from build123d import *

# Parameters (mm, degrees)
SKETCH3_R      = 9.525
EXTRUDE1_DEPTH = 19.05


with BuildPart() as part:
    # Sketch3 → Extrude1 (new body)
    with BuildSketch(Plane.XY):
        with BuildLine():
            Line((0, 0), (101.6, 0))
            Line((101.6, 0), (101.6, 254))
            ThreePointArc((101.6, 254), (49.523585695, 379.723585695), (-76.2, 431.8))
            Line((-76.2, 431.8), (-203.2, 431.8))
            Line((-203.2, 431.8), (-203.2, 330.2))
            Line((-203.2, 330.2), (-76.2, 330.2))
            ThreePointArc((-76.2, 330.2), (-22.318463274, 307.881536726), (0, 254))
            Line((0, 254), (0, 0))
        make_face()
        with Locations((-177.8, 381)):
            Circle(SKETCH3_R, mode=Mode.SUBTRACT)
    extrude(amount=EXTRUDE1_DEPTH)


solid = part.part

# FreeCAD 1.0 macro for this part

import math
import FreeCAD as App
import Part
import Sketcher
Q = App.Units.Quantity

doc = App.newDocument("Part")
body = doc.addObject("PartDesign::Body", "Body")

sketch1 = body.newObject("Sketcher::SketchObject", "Sketch")
sketch1.AttachmentSupport = (doc.getObject("XY_Plane"), [""])
sketch1.MapMode = "FlatFace"
sketch1.addGeometry(Part.LineSegment(App.Vector(0, 0, 0), App.Vector(102, 0, 0)), False)
sketch1.addGeometry(Part.LineSegment(App.Vector(102, 0, 0), App.Vector(102, 254, 0)), False)
sketch1.addGeometry(Part.ArcOfCircle(Part.Circle(App.Vector(-76, 254, 0), App.Vector(0, 0, 1), 178), math.radians(0), math.radians(90)), False)
sketch1.addGeometry(Part.LineSegment(App.Vector(-76, 432, 0), App.Vector(-203, 432, 0)), False)
sketch1.addGeometry(Part.LineSegment(App.Vector(-203, 432, 0), App.Vector(-203, 330, 0)), False)
sketch1.addGeometry(Part.LineSegment(App.Vector(-203, 330, 0), App.Vector(-76, 330, 0)), False)
sketch1.addGeometry(Part.ArcOfCircle(Part.Circle(App.Vector(-76, 254, 0), App.Vector(0, 0, 1), 76), math.radians(0), math.radians(90)), False)
sketch1.addGeometry(Part.LineSegment(App.Vector(0, 254, 0), App.Vector(0, 0, 0)), False)
sketch1.addGeometry(Part.Circle(App.Vector(-178, 381, 0), App.Vector(0, 0, 1), 10), False)
sketch1.addConstraint(Sketcher.Constraint("Coincident", 0, 2, 1, 1))
sketch1.addConstraint(Sketcher.Constraint("Tangent", 1, 2, 2, 1))
sketch1.addConstraint(Sketcher.Constraint("Tangent", 2, 2, 3, 1))
sketch1.addConstraint(Sketcher.Constraint("Coincident", 3, 2, 4, 1))
sketch1.addConstraint(Sketcher.Constraint("Coincident", 4, 2, 5, 1))
sketch1.addConstraint(Sketcher.Constraint("Tangent", 5, 2, 6, 2))
sketch1.addConstraint(Sketcher.Constraint("Tangent", 6, 1, 7, 1))
sketch1.addConstraint(Sketcher.Constraint("Coincident", 7, 2, 0, 1))
sketch1.addConstraint(Sketcher.Constraint("Horizontal", 0))
sketch1.addConstraint(Sketcher.Constraint("Vertical", 1))
sketch1.addConstraint(Sketcher.Constraint("Horizontal", 3))
sketch1.addConstraint(Sketcher.Constraint("Vertical", 4))
sketch1.addConstraint(Sketcher.Constraint("Horizontal", 5))
sketch1.addConstraint(Sketcher.Constraint("Vertical", 7))
sketch1.addConstraint(Sketcher.Constraint("Coincident", 7, 2, -1, 1))
sketch1.addConstraint(Sketcher.Constraint("Coincident", 6, 3, 2, 3))
sketch1.addConstraint(Sketcher.Constraint("Radius", 2, Q("7 in")))
sketch1.addConstraint(Sketcher.Constraint("Radius", 6, Q("3 in")))
sketch1.addConstraint(Sketcher.Constraint("Diameter", 8, Q("0.75 in")))
sketch1.addConstraint(Sketcher.Constraint("DistanceX", 3, 2, 3, 1, Q("5 in")))
sketch1.addConstraint(Sketcher.Constraint("DistanceY", 1, 1, 1, 2, Q("10 in")))
sketch1.addConstraint(Sketcher.Constraint("DistanceX", 8, 3, -1, 1, Q("7 in")))
sketch1.addConstraint(Sketcher.Constraint("DistanceY", -1, 1, 8, 3, Q("15 in")))
pad1 = body.newObject("PartDesign::Pad", "Pad")
pad1.Profile = sketch1
pad1.Length = Q("0.75 in")

doc.recompute()
